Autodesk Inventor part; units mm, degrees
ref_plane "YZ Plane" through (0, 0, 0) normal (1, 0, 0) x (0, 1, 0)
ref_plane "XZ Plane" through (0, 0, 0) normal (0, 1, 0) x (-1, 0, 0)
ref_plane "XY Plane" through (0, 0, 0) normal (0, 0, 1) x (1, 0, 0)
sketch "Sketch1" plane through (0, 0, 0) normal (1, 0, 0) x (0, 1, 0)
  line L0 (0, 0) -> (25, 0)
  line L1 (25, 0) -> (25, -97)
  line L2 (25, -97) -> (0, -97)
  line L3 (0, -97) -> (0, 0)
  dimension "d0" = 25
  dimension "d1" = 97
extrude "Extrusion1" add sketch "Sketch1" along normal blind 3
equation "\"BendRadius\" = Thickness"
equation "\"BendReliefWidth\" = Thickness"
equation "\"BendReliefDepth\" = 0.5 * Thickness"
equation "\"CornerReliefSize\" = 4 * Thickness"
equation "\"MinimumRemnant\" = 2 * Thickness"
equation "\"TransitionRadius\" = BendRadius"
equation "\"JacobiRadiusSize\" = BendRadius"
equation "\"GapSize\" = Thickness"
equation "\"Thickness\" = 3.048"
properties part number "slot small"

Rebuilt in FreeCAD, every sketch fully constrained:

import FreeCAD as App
import Part
import Sketcher

V = App.Vector

doc = App.newDocument("Part")
body = doc.addObject("PartDesign::Body", "Body")

sketch1 = doc.addObject("Sketcher::SketchObject", "Sketch")
body.addObject(sketch1)
sketch1.AttachmentSupport = (doc.YZ_Plane, [""])
sketch1.MapMode = "FlatFace"
sketch1.addGeometry([
    Part.LineSegment(V(25, 0, 0), V(0, 0, 0)),
    Part.LineSegment(V(0, 0, 0), V(0, -97, 0)),
    Part.LineSegment(V(0, -97, 0), V(25, -97, 0)),
    Part.LineSegment(V(25, -97, 0), V(25, 0, 0)),
], False)
sketch1.addConstraint([
    Sketcher.Constraint("Coincident", 0, 2, 1, 1),
    Sketcher.Constraint("Coincident", 1, 2, 2, 1),
    Sketcher.Constraint("Coincident", 2, 2, 3, 1),
    Sketcher.Constraint("Coincident", 3, 2, 0, 1),
    Sketcher.Constraint("Horizontal", 0),
    Sketcher.Constraint("Vertical", 1),
    Sketcher.Constraint("Horizontal", 2),
    Sketcher.Constraint("Vertical", 3),
    Sketcher.Constraint("Coincident", 0, 2, -1, 1),
    Sketcher.Constraint("DistanceX", 0, 2, 0, 1, 25.0),
    Sketcher.Constraint("DistanceY", 1, 2, 1, 1, 97.0),
])
pad1 = doc.addObject("PartDesign::Pad", "Pad")
body.addObject(pad1)
pad1.Profile = sketch1
pad1.Length = 3

doc.recompute()
